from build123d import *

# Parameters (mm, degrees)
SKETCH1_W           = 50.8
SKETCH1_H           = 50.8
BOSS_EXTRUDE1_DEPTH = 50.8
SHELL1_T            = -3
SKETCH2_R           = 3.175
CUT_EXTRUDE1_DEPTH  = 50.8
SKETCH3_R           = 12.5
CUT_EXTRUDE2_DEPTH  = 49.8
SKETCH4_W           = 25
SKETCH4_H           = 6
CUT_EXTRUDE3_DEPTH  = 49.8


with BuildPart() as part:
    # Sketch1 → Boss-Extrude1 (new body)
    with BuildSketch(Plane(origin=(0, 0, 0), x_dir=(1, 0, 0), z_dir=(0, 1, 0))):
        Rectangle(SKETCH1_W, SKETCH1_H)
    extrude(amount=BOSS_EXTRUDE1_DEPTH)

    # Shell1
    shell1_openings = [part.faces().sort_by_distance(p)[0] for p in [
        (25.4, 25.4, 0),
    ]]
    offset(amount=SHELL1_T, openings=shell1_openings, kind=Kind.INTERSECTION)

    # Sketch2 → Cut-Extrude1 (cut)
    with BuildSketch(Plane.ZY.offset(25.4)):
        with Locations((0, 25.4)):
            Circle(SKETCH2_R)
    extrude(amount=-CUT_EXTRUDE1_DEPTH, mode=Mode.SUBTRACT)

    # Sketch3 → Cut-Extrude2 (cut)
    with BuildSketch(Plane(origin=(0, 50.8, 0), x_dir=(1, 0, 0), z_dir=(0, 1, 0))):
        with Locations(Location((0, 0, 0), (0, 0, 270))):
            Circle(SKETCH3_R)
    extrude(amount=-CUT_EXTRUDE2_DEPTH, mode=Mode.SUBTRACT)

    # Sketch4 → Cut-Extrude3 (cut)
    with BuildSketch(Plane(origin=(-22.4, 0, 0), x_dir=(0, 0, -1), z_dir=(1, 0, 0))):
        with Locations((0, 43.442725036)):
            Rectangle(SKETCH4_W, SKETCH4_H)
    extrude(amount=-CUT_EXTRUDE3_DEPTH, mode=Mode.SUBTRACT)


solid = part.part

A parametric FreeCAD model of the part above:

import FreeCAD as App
import Part
import Sketcher

V = App.Vector


def faces_at(feature, points):
    """Names of the faces that lie closest to the given points."""
    faces = feature.Shape.Faces
    near = lambda p: min(range(len(faces)), key=lambda i: faces[i].distToShape(Part.Vertex(*p))[0])
    return sorted({f"Face{near(p) + 1}" for p in points})


def add_polygon(sketch, points):
    """Adds a closed chain of lines whose ends are joined by coincident constraints."""
    first, n = sketch.GeometryCount, len(points)
    for a, b in zip(points, points[1:] + points[:1]):
        sketch.addGeometry(Part.LineSegment(App.Vector(*a, 0), App.Vector(*b, 0)), False)
    for i in range(n):
        sketch.addConstraint(Sketcher.Constraint("Coincident", first + i, 2, first + (i + 1) % n, 1))

doc = App.newDocument("Part")
body = doc.addObject("PartDesign::Body", "Body")

# Sketch on XZ plane
sketch1 = doc.addObject("Sketcher::SketchObject", "Sketch")
body.addObject(sketch1)
sketch1.AttachmentSupport = (doc.XZ_Plane, [""])
sketch1.MapMode = "FlatFace"
add_polygon(sketch1, [(-25, -25), (-25, 25), (25, 25), (25, -25)])  # lines 0-3
sketch1.addConstraint([
    Sketcher.Constraint("Vertical", 0),
    Sketcher.Constraint("Horizontal", 1),
    Sketcher.Constraint("Vertical", 2),
    Sketcher.Constraint("Horizontal", 3),
    Sketcher.Constraint("Symmetric", 0, 2, 2, 2, -1, 1),
    Sketcher.Constraint("Equal", 3, 0),
    Sketcher.Constraint("DistanceX", 1, 1, 1, 2, 50.8),
])
pad1 = doc.addObject("PartDesign::Pad", "Pad")
body.addObject(pad1)
pad1.Profile = sketch1
pad1.Length = 50.8
pad1.Reversed = True
doc.recompute()

thickness = doc.addObject("PartDesign::Thickness", "Thickness")
body.addObject(thickness)
thickness.Base = (pad1, faces_at(pad1, [(25.4, 25.4, 0)]))
thickness.Value = 3
thickness.Reversed = True
thickness.Join = "Intersection"

# Sketch on YZ plane
sketch2 = doc.addObject("Sketcher::SketchObject", "Sketch001")
body.addObject(sketch2)
sketch2.AttachmentSupport = (doc.YZ_Plane, [""])
sketch2.MapMode = "FlatFace"
sketch2.AttachmentOffset = App.Placement(V(0, 0, -25.4), App.Rotation())
sketch2.addGeometry(Part.Circle(V(25.4, 0, 0), V(0, 0, 1), 3.2), False)
sketch2.addConstraint([
    Sketcher.Constraint("PointOnObject", 0, 3, -1),
    Sketcher.Constraint("Diameter", 0, 6.35),
    Sketcher.Constraint("DistanceX", -1, 1, 0, 3, 25.4),
])
pocket1 = doc.addObject("PartDesign::Pocket", "Pocket")
body.addObject(pocket1)
pocket1.Profile = sketch2
pocket1.Length = 50.8
pocket1.Reversed = True

# Sketch on XZ plane
sketch3 = doc.addObject("Sketcher::SketchObject", "Sketch002")
body.addObject(sketch3)
sketch3.AttachmentSupport = (doc.XZ_Plane, [""])
sketch3.MapMode = "FlatFace"
sketch3.AttachmentOffset = App.Placement(V(0, 0, -50.8), App.Rotation())
sketch3.addGeometry(Part.Circle(V(0, 0, 0), V(0, 0, 1), 12), False)
sketch3.addConstraint([
    Sketcher.Constraint("Coincident", 0, 3, -1, 1),
    Sketcher.Constraint("Diameter", 0, 25.0),
])
pocket2 = doc.addObject("PartDesign::Pocket", "Pocket001")
body.addObject(pocket2)
pocket2.Profile = sketch3
pocket2.Length = 49.8
pocket2.Reversed = True

# Sketch on YZ plane
sketch4 = doc.addObject("Sketcher::SketchObject", "Sketch003")
body.addObject(sketch4)
sketch4.AttachmentSupport = (doc.YZ_Plane, [""])
sketch4.MapMode = "FlatFace"
sketch4.AttachmentOffset = App.Placement(V(0, 0, -22.4), App.Rotation())
add_polygon(sketch4, [(46, 12), (40, 12), (40, -12), (46, -12)])  # lines 0-3
sketch4.addConstraint([
    Sketcher.Constraint("Horizontal", 0),
    Sketcher.Constraint("Vertical", 1),
    Sketcher.Constraint("Horizontal", 2),
    Sketcher.Constraint("Vertical", 3),
    Sketcher.Constraint("DistanceX", 0, 2, 0, 1, 6.0),
    Sketcher.Constraint("DistanceY", 1, 2, 1, 1, 25.0),
    Sketcher.Constraint("DistanceY", -1, 1, 0, 2, 12.5),
    Sketcher.Constraint("DistanceX", -1, 1, 0, 2, 40.442725),
])
pocket3 = doc.addObject("PartDesign::Pocket", "Pocket002")
body.addObject(pocket3)
pocket3.Profile = sketch4
pocket3.Length = 49.8

doc.recompute()
